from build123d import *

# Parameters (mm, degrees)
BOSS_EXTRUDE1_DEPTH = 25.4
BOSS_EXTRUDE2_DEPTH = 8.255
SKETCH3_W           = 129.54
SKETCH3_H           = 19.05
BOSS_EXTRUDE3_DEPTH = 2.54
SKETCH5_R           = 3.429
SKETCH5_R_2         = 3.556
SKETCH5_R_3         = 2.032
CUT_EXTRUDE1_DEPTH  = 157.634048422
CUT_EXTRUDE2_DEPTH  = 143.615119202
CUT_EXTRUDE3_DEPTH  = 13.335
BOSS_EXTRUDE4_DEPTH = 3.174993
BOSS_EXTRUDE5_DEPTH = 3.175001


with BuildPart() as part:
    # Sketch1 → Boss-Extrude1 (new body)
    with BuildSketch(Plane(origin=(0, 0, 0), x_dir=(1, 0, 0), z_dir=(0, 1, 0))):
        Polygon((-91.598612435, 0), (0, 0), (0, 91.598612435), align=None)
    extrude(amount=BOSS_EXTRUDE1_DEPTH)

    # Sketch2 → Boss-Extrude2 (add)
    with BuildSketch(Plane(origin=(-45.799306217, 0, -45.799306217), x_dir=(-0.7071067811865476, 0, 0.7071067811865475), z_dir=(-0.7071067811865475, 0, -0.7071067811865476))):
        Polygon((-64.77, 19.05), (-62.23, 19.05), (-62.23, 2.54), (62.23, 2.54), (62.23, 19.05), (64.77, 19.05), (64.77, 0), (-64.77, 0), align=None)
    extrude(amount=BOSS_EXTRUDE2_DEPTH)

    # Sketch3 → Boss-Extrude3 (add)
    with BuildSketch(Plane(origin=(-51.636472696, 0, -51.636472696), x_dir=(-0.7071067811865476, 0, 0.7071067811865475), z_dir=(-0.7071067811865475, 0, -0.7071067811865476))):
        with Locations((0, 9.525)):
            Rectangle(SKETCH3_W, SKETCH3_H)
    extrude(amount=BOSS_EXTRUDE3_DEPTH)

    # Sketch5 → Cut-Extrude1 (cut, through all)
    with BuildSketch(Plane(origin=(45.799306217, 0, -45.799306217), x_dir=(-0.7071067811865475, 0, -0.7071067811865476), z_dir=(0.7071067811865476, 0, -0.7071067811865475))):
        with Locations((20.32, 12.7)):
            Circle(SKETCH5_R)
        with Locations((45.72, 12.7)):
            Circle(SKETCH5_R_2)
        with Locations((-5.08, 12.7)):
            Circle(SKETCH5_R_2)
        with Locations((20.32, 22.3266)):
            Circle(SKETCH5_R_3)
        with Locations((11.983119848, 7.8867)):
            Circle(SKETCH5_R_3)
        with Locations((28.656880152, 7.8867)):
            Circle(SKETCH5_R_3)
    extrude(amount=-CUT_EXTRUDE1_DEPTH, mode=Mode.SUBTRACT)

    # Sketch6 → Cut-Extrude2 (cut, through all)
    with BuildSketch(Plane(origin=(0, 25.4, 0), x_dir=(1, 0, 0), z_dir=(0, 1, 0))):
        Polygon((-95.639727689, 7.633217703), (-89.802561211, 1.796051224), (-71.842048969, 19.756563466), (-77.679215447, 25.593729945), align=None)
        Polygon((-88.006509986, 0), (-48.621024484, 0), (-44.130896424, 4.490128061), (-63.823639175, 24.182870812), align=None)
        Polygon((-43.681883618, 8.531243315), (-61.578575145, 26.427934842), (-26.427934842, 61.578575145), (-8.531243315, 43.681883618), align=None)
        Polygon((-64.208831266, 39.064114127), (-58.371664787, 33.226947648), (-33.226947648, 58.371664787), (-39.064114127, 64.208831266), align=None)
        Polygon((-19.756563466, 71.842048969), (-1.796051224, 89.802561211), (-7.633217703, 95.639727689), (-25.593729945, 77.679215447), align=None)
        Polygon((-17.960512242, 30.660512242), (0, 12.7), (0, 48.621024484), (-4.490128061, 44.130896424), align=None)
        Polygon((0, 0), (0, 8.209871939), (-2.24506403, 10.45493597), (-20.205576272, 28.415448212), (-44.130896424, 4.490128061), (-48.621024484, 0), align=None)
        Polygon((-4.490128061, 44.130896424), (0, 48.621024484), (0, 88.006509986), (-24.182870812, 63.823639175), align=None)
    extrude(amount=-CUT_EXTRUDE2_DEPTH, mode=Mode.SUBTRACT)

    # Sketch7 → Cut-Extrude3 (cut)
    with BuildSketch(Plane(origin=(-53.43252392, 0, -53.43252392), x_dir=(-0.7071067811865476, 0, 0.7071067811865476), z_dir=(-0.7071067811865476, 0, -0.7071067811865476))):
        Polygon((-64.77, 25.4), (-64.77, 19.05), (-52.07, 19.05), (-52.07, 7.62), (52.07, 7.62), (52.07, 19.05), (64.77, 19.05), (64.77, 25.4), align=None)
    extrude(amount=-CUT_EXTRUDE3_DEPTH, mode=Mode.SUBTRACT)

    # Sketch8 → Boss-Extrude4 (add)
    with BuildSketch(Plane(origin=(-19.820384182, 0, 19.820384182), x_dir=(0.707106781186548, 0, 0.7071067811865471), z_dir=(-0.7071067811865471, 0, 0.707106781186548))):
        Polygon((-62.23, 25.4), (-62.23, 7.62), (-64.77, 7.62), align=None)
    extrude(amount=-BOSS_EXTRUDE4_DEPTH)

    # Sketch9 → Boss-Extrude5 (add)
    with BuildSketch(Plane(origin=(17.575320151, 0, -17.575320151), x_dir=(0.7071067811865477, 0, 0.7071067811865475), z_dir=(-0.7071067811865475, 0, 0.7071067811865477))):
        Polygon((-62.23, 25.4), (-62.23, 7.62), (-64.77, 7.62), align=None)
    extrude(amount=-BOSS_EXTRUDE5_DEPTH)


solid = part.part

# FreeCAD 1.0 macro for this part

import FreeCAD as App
import Part
import Sketcher
from FreeCAD import Vector
Q = App.Units.Quantity


def add_polygon(sketch, points):
    """Adds a closed chain of lines whose ends are joined by coincident constraints."""
    first, n = sketch.GeometryCount, len(points)
    for a, b in zip(points, points[1:] + points[:1]):
        sketch.addGeometry(Part.LineSegment(App.Vector(*a, 0), App.Vector(*b, 0)), False)
    for i in range(n):
        sketch.addConstraint(Sketcher.Constraint("Coincident", first + i, 2, first + (i + 1) % n, 1))

doc = App.newDocument("Part")
body = doc.addObject("PartDesign::Body", "Body")

sketch1 = body.newObject("Sketcher::SketchObject", "Sketch")
sketch1.AttachmentSupport = (doc.getObject("XZ_Plane"), [""])
sketch1.MapMode = "FlatFace"
add_polygon(sketch1, [(-92, 0), (0, 0), (0, -92)])
sketch1.addConstraint(Sketcher.Constraint("Horizontal", 0))
sketch1.addConstraint(Sketcher.Constraint("Vertical", 1))
sketch1.addConstraint(Sketcher.Constraint("Coincident", 0, 2, -1, 1))
sketch1.addConstraint(Sketcher.Constraint("Equal", 0, 1))
sketch1.addConstraint(Sketcher.Constraint("Distance", 2, Q("5.1 in")))
pad1 = body.newObject("PartDesign::Pad", "Pad")
pad1.Profile = sketch1
pad1.Length = Q("1 in")
pad1.Reversed = True

sketch2 = body.newObject("Sketcher::SketchObject", "Sketch001")
sketch2.Placement = App.Placement(Vector(-45.799306, 0, -45.799306), App.Rotation(Vector(-0.707106781, 0, 0.707106781), Vector(0, 0.999999999, 0), Vector(-0.707106781, 0, -0.707106781), "ZXY"))
add_polygon(sketch2, [(-62.2, 19), (-64.8, 19), (-64.8, 0), (64.8, 0), (64.8, 19), (62.2, 19), (62.2, 2.5), (-62.2, 2.5)])
sketch2.addConstraint(Sketcher.Constraint("Horizontal", 0))
sketch2.addConstraint(Sketcher.Constraint("Vertical", 1))
sketch2.addConstraint(Sketcher.Constraint("Horizontal", 2))
sketch2.addConstraint(Sketcher.Constraint("Vertical", 3))
sketch2.addConstraint(Sketcher.Constraint("Horizontal", 4))
sketch2.addConstraint(Sketcher.Constraint("Vertical", 5))
sketch2.addConstraint(Sketcher.Constraint("Horizontal", 6))
sketch2.addConstraint(Sketcher.Constraint("Vertical", 7))
sketch2.addConstraint(Sketcher.Constraint("Symmetric", 1, 2, 2, 2, -1, 1))
sketch2.addConstraint(Sketcher.Constraint("Symmetric", 4, 2, 7, 2, -2))
sketch2.addConstraint(Sketcher.Constraint("DistanceX", 0, 2, 0, 1, Q("0.1 in")))
sketch2.addConstraint(Sketcher.Constraint("DistanceX", 2, 1, 2, 2, Q("5.1 in")))
sketch2.addConstraint(Sketcher.Constraint("DistanceY", 1, 2, 1, 1, Q("0.75 in")))
sketch2.addConstraint(Sketcher.Constraint("DistanceY", 5, 2, 5, 1, Q("0.65 in")))
pad2 = body.newObject("PartDesign::Pad", "Pad001")
pad2.Profile = sketch2
pad2.Length = Q("0.325 in")

sketch3 = body.newObject("Sketcher::SketchObject", "Sketch002")
sketch3.Placement = App.Placement(Vector(-51.636473, 0, -51.636473), App.Rotation(Vector(-0.707106781, 0, 0.707106781), Vector(0, 0.999999999, 0), Vector(-0.707106781, 0, -0.707106781), "ZXY"))
add_polygon(sketch3, [(-65, 19), (-65, 0), (65, 0), (65, 19)])
sketch3.addConstraint(Sketcher.Constraint("Vertical", 0))
sketch3.addConstraint(Sketcher.Constraint("Horizontal", 1))
sketch3.addConstraint(Sketcher.Constraint("Vertical", 2))
sketch3.addConstraint(Sketcher.Constraint("Horizontal", 3))
sketch3.addConstraint(Sketcher.Constraint("Symmetric", 0, 2, 1, 2, -1, 1))
sketch3.addConstraint(Sketcher.Constraint("DistanceX", 1, 1, 1, 2, Q("5.1 in")))
sketch3.addConstraint(Sketcher.Constraint("DistanceY", 0, 2, 0, 1, Q("0.75 in")))
pad3 = body.newObject("PartDesign::Pad", "Pad002")
pad3.Profile = sketch3
pad3.Length = Q("0.1 in")

sketch4 = body.newObject("Sketcher::SketchObject", "Sketch003")
sketch4.Placement = App.Placement(Vector(45.799306, 0, -45.799306), App.Rotation(Vector(-0.707106781, 0, -0.707106781), Vector(0, 0.999999999, 0), Vector(0.707106781, 0, -0.707106781), "ZXY"))
sketch4.addGeometry(Part.Circle(Vector(20.3, 12.7, 0), Vector(0, 0, 1), 3.4), False)
sketch4.addGeometry(Part.Circle(Vector(45.7, 12.7, 0), Vector(0, 0, 1), 3.6), False)
sketch4.addGeometry(Part.Circle(Vector(-5.1, 12.7, 0), Vector(0, 0, 1), 3.6), False)
sketch4.addGeometry(Part.Circle(Vector(20.3, 22.3, 0), Vector(0, 0, 1), 2), False)
sketch4.addGeometry(Part.Circle(Vector(12, 7.9, 0), Vector(0, 0, 1), 2), False)
sketch4.addGeometry(Part.Circle(Vector(28.7, 7.9, 0), Vector(0, 0, 1), 2), False)
sketch4.addConstraint(Sketcher.Constraint("Equal", 1, 2))
sketch4.addConstraint(Sketcher.Constraint("Equal", 3, 4))
sketch4.addConstraint(Sketcher.Constraint("Equal", 4, 5))
sketch4.addConstraint(Sketcher.Constraint("Horizontal", 0, 3, 1, 3))
sketch4.addConstraint(Sketcher.Constraint("Horizontal", 1, 3, 2, 3))
sketch4.addConstraint(Sketcher.Constraint("Horizontal", 4, 3, 5, 3))
sketch4.addConstraint(Sketcher.Constraint("Vertical", 0, 3, 3, 3))
sketch4.addConstraint(Sketcher.Constraint("Diameter", 0, Q("0.27 in")))
sketch4.addConstraint(Sketcher.Constraint("Diameter", 1, Q("0.28 in")))
sketch4.addConstraint(Sketcher.Constraint("Diameter", 3, Q("0.16 in")))
sketch4.addConstraint(Sketcher.Constraint("DistanceX", 0, 3, 1, 3, Q("1 in")))
sketch4.addConstraint(Sketcher.Constraint("DistanceX", 2, 3, 0, 3, Q("1 in")))
sketch4.addConstraint(Sketcher.Constraint("DistanceX", -1, 1, 0, 3, Q("0.8 in")))
sketch4.addConstraint(Sketcher.Constraint("DistanceY", -1, 1, 0, 3, Q("0.5 in")))
sketch4.addConstraint(Sketcher.Constraint("DistanceY", -1, 1, 3, 3, Q("0.879 in")))
sketch4.addConstraint(Sketcher.Constraint("DistanceY", -1, 1, 4, 3, Q("0.3105 in")))
sketch4.addConstraint(Sketcher.Constraint("DistanceX", -1, 1, 4, 3, 11.98312))
sketch4.addConstraint(Sketcher.Constraint("DistanceX", -1, 1, 5, 3, 28.65688))
pocket1 = body.newObject("PartDesign::Pocket", "Pocket")
pocket1.Profile = sketch4
pocket1.Type = "ThroughAll"

sketch5 = body.newObject("Sketcher::SketchObject", "Sketch004")
sketch5.AttachmentSupport = (doc.getObject("XZ_Plane"), [""])
sketch5.MapMode = "FlatFace"
sketch5.AttachmentOffset = App.Placement(Vector(0, 0, -1 * 25.4), App.Rotation())
add_polygon(sketch5, [(-95.6, -7.6), (-89.8, -1.8), (-71.8, -19.8), (-77.7, -25.6)])
add_polygon(sketch5, [(-88, 0), (0, 0), (0, -8.2), (-2.2, -10.5), (-20.2, -28.4), (-44.1, -4.5), (-63.8, -24.2)])
add_polygon(sketch5, [(-61.6, -26.4), (-43.7, -8.5), (-8.5, -43.7), (-26.4, -61.6)])
add_polygon(sketch5, [(-64.2, -39.1), (-58.4, -33.2), (-33.2, -58.4), (-39.1, -64.2)])
add_polygon(sketch5, [(-19.8, -71.8), (-1.8, -89.8), (-7.6, -95.6), (-25.6, -77.7)])
add_polygon(sketch5, [(-18, -30.7), (0, -12.7), (0, -88), (-24.2, -63.8), (-4.5, -44.1)])
sketch5.addConstraint(Sketcher.Constraint("Horizontal", 4))
sketch5.addConstraint(Sketcher.Constraint("Vertical", 5))
sketch5.addConstraint(Sketcher.Constraint("Vertical", 24))
sketch5.addConstraint(Sketcher.Constraint("Coincident", 4, 2, -1, 1))
sketch5.addConstraint(Sketcher.Constraint("PointOnObject", 23, 2, -2))
sketch5.addConstraint(Sketcher.Constraint("Perpendicular", 0, 1))
sketch5.addConstraint(Sketcher.Constraint("Perpendicular", 1, 2))
sketch5.addConstraint(Sketcher.Constraint("Perpendicular", 2, 3))
sketch5.addConstraint(Sketcher.Constraint("Perpendicular", 3, 6))
sketch5.addConstraint(Sketcher.Constraint("Parallel", 6, 7))
sketch5.addConstraint(Sketcher.Constraint("Perpendicular", 7, 8))
sketch5.addConstraint(Sketcher.Constraint("Perpendicular", 8, 9))
sketch5.addConstraint(Sketcher.Constraint("Perpendicular", 9, 10))
sketch5.addConstraint(Sketcher.Constraint("Perpendicular", 10, 11))
sketch5.addConstraint(Sketcher.Constraint("Perpendicular", 11, 12))
sketch5.addConstraint(Sketcher.Constraint("Perpendicular", 12, 13))
sketch5.addConstraint(Sketcher.Constraint("Perpendicular", 13, 14))
sketch5.addConstraint(Sketcher.Constraint("Perpendicular", 14, 15))
sketch5.addConstraint(Sketcher.Constraint("Perpendicular", 15, 16))
sketch5.addConstraint(Sketcher.Constraint("Perpendicular", 16, 17))
sketch5.addConstraint(Sketcher.Constraint("Perpendicular", 17, 18))
sketch5.addConstraint(Sketcher.Constraint("Parallel", 18, 19))
sketch5.addConstraint(Sketcher.Constraint("Perpendicular", 19, 20))
sketch5.addConstraint(Sketcher.Constraint("Perpendicular", 20, 21))
sketch5.addConstraint(Sketcher.Constraint("Perpendicular", 21, 22))
sketch5.addConstraint(Sketcher.Constraint("Parallel", 22, 23))
sketch5.addConstraint(Sketcher.Constraint("Perpendicular", 23, 25))
sketch5.addConstraint(Sketcher.Constraint("Perpendicular", 25, 26))
sketch5.addConstraint(Sketcher.Constraint("Perpendicular", 26, 27))
sketch5.addConstraint(Sketcher.Constraint("Equal", 3, 7))
sketch5.addConstraint(Sketcher.Constraint("Equal", 2, 15))
sketch5.addConstraint(Sketcher.Constraint("Equal", 7, 19))
sketch5.addConstraint(Sketcher.Constraint("Equal", 17, 20))
sketch5.addConstraint(Sketcher.Constraint("Equal", 21, 23))
sketch5.addConstraint(Sketcher.Constraint("Equal", 10, 25))
sketch5.addConstraint(Sketcher.Constraint("Equal", 9, 26))
sketch5.addConstraint(Sketcher.Constraint("Distance", 1, Q("1 in")))
sketch5.addConstraint(Sketcher.Constraint("Angle", 0, Q("45 deg")))
sketch5.addConstraint(Sketcher.Constraint("Distance", 16, Q("1.4 in")))
sketch5.addConstraint(Sketcher.Constraint("DistanceY", 23, 2, -1, 1, Q("0.5 in")))
sketch5.addConstraint(Sketcher.Constraint("Distance", 27, Q("0.75 in")))
sketch5.addConstraint(Sketcher.Constraint("Distance", 0, Q("0.325 in")))
sketch5.addConstraint(Sketcher.Constraint("Distance", 6, Q("0.125 in")))
sketch5.addConstraint(Sketcher.Constraint("DistanceX", 2, 2, 8, 2, Q("1.3208 in")))
sketch5.addConstraint(Sketcher.Constraint("DistanceX", 4, 1, 4, 2, 88.00651))
sketch5.addConstraint(Sketcher.Constraint("DistanceY", 5, 2, 5, 1, 8.209872))
sketch5.addConstraint(Sketcher.Constraint("DistanceY", 2, 2, 8, 2, 21.103602))
sketch5.addConstraint(Sketcher.Constraint("DistanceY", 17, 2, -1, 1, 64.208831))
sketch5.addConstraint(Sketcher.Constraint("DistanceX", 18, 2, -1, 1, 64.208831))
sketch5.addConstraint(Sketcher.Constraint("DistanceX", 19, 2, -1, 1, 1.796051))
sketch5.addConstraint(Sketcher.Constraint("DistanceY", 19, 2, -1, 1, 89.802561))
sketch5.addConstraint(Sketcher.Constraint("DistanceY", 1, 2, 11, 2, 11.22532))
sketch5.addConstraint(Sketcher.Constraint("DistanceX", 2, 2, 11, 2, 33.997332))
sketch5.addConstraint(Sketcher.Constraint("DistanceX", 12, 2, 6, 2, 6.286179))
sketch5.addConstraint(Sketcher.Constraint("DistanceX", 13, 2, 12, 2, 17.896692))
pocket2 = body.newObject("PartDesign::Pocket", "Pocket001")
pocket2.Profile = sketch5
pocket2.Type = "ThroughAll"
pocket2.Reversed = True

sketch6 = body.newObject("Sketcher::SketchObject", "Sketch005")
sketch6.Placement = App.Placement(Vector(-53.432524, 0, -53.432524), App.Rotation(Vector(-0.707106781, 0, 0.707106781), Vector(0, 0.999999999, 0), Vector(-0.707106781, 0, -0.707106781), "ZXY"))
add_polygon(sketch6, [(-65, 25), (-65, 19), (-52, 19), (-52, 8), (52, 8), (52, 19), (65, 19), (65, 25)])
sketch6.addConstraint(Sketcher.Constraint("Vertical", 0))
sketch6.addConstraint(Sketcher.Constraint("Horizontal", 1))
sketch6.addConstraint(Sketcher.Constraint("Vertical", 2))
sketch6.addConstraint(Sketcher.Constraint("Horizontal", 3))
sketch6.addConstraint(Sketcher.Constraint("Vertical", 4))
sketch6.addConstraint(Sketcher.Constraint("Horizontal", 5))
sketch6.addConstraint(Sketcher.Constraint("Vertical", 6))
sketch6.addConstraint(Sketcher.Constraint("Horizontal", 7))
sketch6.addConstraint(Sketcher.Constraint("Symmetric", 1, 2, 4, 2, -2))
sketch6.addConstraint(Sketcher.Constraint("Equal", 1, 5))
sketch6.addConstraint(Sketcher.Constraint("DistanceX", 1, 1, 1, 2, Q("0.5 in")))
sketch6.addConstraint(Sketcher.Constraint("DistanceX", 3, 1, 3, 2, Q("4.1 in")))
sketch6.addConstraint(Sketcher.Constraint("DistanceY", -1, 1, 6, 2, Q("1 in")))
sketch6.addConstraint(Sketcher.Constraint("DistanceY", 0, 2, 0, 1, Q("0.25 in")))
sketch6.addConstraint(Sketcher.Constraint("DistanceY", 2, 2, 2, 1, Q("0.45 in")))
pocket3 = body.newObject("PartDesign::Pocket", "Pocket002")
pocket3.Profile = sketch6
pocket3.Length = Q("0.525 in")

sketch7 = body.newObject("Sketcher::SketchObject", "Sketch006")
sketch7.Placement = App.Placement(Vector(-19.820384, 0, 19.820384), App.Rotation(Vector(0.707106781, 0, 0.707106781), Vector(0, 0.999999999, 0), Vector(-0.707106781, 0, 0.707106781), "ZXY"))
add_polygon(sketch7, [(-62.2, 7.6), (-62.2, 25.4), (-64.8, 7.6)])
sketch7.addConstraint(Sketcher.Constraint("Vertical", 0))
sketch7.addConstraint(Sketcher.Constraint("Horizontal", 2))
sketch7.addConstraint(Sketcher.Constraint("DistanceX", 2, 1, 2, 2, Q("0.1 in")))
sketch7.addConstraint(Sketcher.Constraint("DistanceY", 0, 1, 0, 2, Q("0.7 in")))
sketch7.addConstraint(Sketcher.Constraint("DistanceY", -1, 1, 0, 2, Q("1 in")))
sketch7.addConstraint(Sketcher.Constraint("DistanceX", 0, 2, -1, 1, Q("2.45 in")))
pad4 = body.newObject("PartDesign::Pad", "Pad003")
pad4.Profile = sketch7
pad4.Length = 3.174993
pad4.Reversed = True

sketch8 = body.newObject("Sketcher::SketchObject", "Sketch007")
sketch8.Placement = App.Placement(Vector(17.57532, 0, -17.57532), App.Rotation(Vector(0.707106781, 0, 0.707106781), Vector(0, 0.999999999, 0), Vector(-0.707106781, 0, 0.707106781), "ZXY"))
add_polygon(sketch8, [(-62.2, 7.6), (-62.2, 25.4), (-64.8, 7.6)])
sketch8.addConstraint(Sketcher.Constraint("Vertical", 0))
sketch8.addConstraint(Sketcher.Constraint("Horizontal", 2))
sketch8.addConstraint(Sketcher.Constraint("DistanceX", 2, 1, 2, 2, Q("0.1 in")))
sketch8.addConstraint(Sketcher.Constraint("DistanceY", 0, 1, 0, 2, Q("0.7 in")))
sketch8.addConstraint(Sketcher.Constraint("DistanceY", -1, 1, 0, 2, Q("1 in")))
sketch8.addConstraint(Sketcher.Constraint("DistanceX", 0, 2, -1, 1, Q("2.45 in")))
pad5 = body.newObject("PartDesign::Pad", "Pad004")
pad5.Profile = sketch8
pad5.Length = Q("0.125 in")
pad5.Reversed = True

doc.recompute()
